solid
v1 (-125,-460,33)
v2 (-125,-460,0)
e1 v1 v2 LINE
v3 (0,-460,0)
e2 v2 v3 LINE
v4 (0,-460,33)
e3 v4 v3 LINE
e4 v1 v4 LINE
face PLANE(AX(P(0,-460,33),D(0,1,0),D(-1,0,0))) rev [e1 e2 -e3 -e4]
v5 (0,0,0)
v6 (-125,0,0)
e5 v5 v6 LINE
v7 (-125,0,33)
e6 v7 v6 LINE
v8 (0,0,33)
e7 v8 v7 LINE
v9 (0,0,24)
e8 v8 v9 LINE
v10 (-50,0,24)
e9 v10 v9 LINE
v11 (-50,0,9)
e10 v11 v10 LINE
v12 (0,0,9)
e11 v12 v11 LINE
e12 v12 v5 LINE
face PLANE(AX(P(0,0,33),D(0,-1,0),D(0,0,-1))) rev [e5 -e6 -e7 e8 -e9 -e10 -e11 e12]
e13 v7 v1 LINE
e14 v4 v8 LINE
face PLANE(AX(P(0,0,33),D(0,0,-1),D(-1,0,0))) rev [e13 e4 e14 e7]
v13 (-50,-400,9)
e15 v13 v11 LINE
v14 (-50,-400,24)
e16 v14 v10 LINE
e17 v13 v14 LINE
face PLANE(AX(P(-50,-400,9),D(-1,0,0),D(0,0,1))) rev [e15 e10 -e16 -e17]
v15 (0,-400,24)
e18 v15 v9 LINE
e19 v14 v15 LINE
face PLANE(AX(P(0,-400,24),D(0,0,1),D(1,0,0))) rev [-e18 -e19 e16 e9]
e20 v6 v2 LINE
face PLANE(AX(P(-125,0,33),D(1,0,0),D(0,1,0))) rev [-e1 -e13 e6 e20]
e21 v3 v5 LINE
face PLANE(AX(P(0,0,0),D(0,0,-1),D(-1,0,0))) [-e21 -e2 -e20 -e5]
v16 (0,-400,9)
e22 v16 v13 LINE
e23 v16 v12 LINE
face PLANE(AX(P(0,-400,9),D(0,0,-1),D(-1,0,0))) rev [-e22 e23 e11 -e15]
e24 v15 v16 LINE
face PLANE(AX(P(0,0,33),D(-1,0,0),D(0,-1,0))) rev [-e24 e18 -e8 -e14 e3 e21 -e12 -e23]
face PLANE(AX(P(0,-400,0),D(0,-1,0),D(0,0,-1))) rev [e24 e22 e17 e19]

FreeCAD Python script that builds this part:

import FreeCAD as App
import Part
import Sketcher


def add_polygon(sketch, points):
    """Adds a closed chain of lines whose ends are joined by coincident constraints."""
    first, n = sketch.GeometryCount, len(points)
    for a, b in zip(points, points[1:] + points[:1]):
        sketch.addGeometry(Part.LineSegment(App.Vector(*a, 0), App.Vector(*b, 0)), False)
    for i in range(n):
        sketch.addConstraint(Sketcher.Constraint("Coincident", first + i, 2, first + (i + 1) % n, 1))

doc = App.newDocument("Part")
params = doc.addObject("Spreadsheet::Sheet", "Params")
for row, (alias, value) in enumerate([
    ("sketch1_width", "125 mm"),
    ("sketch1_height", "460 mm"),
    ("pad1_length", "33 mm"),
    ("sketch2_width", "50 mm"),
    ("sketch2_height", "15 mm"),
    ("pocket1_length", "400 mm"),
], start=1):
    params.set(f"A{row}", alias)
    params.set(f"B{row}", "=" + value)
    params.setAlias(f"B{row}", alias)

body = doc.addObject("PartDesign::Body", "Body")

# Sketch on XY plane
sketch1 = body.newObject("Sketcher::SketchObject", "Sketch")
sketch1.AttachmentSupport = (doc.getObject("XY_Plane"), [""])
sketch1.MapMode = "FlatFace"
add_polygon(sketch1, [(-125, 0), (-125, -460), (0, -460), (0, 0)])  # lines 0-3
sketch1.addConstraint(Sketcher.Constraint("Vertical", 0))
sketch1.addConstraint(Sketcher.Constraint("Horizontal", 1))
sketch1.addConstraint(Sketcher.Constraint("Vertical", 2))
sketch1.addConstraint(Sketcher.Constraint("Horizontal", 3))
sketch1.addConstraint(Sketcher.Constraint("Coincident", 2, 2, -1, 1))
sketch1.addConstraint(Sketcher.Constraint("DistanceX", 1, 1, 1, 2, 125.0))
sketch1.addConstraint(Sketcher.Constraint("DistanceY", 0, 2, 0, 1, 460.0))
sketch1.setExpression("Constraints[9]", "Params.sketch1_width")
sketch1.setExpression("Constraints[10]", "Params.sketch1_height")
pad1 = body.newObject("PartDesign::Pad", "Pad")
pad1.Profile = sketch1
pad1.setExpression("Length", "Params.pad1_length")

# Sketch on XZ plane
sketch2 = body.newObject("Sketcher::SketchObject", "Sketch001")
sketch2.AttachmentSupport = (doc.getObject("XZ_Plane"), [""])
sketch2.MapMode = "FlatFace"
add_polygon(sketch2, [(-50, 9), (-50, 24), (0, 24), (0, 9)])  # lines 0-3
sketch2.addConstraint(Sketcher.Constraint("Vertical", 0))
sketch2.addConstraint(Sketcher.Constraint("Horizontal", 1))
sketch2.addConstraint(Sketcher.Constraint("Vertical", 2))
sketch2.addConstraint(Sketcher.Constraint("Horizontal", 3))
sketch2.addConstraint(Sketcher.Constraint("PointOnObject", 1, 2, -2))
sketch2.addConstraint(Sketcher.Constraint("DistanceX", 1, 1, 1, 2, 50.0))
sketch2.addConstraint(Sketcher.Constraint("DistanceY", 0, 1, 0, 2, 15.0))
sketch2.addConstraint(Sketcher.Constraint("DistanceY", -1, 1, 0, 2, 24.0))
sketch2.setExpression("Constraints[9]", "Params.sketch2_width")
sketch2.setExpression("Constraints[10]", "Params.sketch2_height")
pocket1 = body.newObject("PartDesign::Pocket", "Pocket")
pocket1.Profile = sketch2
pocket1.setExpression("Length", "Params.pocket1_length")
pocket1.Reversed = True

doc.recompute()
